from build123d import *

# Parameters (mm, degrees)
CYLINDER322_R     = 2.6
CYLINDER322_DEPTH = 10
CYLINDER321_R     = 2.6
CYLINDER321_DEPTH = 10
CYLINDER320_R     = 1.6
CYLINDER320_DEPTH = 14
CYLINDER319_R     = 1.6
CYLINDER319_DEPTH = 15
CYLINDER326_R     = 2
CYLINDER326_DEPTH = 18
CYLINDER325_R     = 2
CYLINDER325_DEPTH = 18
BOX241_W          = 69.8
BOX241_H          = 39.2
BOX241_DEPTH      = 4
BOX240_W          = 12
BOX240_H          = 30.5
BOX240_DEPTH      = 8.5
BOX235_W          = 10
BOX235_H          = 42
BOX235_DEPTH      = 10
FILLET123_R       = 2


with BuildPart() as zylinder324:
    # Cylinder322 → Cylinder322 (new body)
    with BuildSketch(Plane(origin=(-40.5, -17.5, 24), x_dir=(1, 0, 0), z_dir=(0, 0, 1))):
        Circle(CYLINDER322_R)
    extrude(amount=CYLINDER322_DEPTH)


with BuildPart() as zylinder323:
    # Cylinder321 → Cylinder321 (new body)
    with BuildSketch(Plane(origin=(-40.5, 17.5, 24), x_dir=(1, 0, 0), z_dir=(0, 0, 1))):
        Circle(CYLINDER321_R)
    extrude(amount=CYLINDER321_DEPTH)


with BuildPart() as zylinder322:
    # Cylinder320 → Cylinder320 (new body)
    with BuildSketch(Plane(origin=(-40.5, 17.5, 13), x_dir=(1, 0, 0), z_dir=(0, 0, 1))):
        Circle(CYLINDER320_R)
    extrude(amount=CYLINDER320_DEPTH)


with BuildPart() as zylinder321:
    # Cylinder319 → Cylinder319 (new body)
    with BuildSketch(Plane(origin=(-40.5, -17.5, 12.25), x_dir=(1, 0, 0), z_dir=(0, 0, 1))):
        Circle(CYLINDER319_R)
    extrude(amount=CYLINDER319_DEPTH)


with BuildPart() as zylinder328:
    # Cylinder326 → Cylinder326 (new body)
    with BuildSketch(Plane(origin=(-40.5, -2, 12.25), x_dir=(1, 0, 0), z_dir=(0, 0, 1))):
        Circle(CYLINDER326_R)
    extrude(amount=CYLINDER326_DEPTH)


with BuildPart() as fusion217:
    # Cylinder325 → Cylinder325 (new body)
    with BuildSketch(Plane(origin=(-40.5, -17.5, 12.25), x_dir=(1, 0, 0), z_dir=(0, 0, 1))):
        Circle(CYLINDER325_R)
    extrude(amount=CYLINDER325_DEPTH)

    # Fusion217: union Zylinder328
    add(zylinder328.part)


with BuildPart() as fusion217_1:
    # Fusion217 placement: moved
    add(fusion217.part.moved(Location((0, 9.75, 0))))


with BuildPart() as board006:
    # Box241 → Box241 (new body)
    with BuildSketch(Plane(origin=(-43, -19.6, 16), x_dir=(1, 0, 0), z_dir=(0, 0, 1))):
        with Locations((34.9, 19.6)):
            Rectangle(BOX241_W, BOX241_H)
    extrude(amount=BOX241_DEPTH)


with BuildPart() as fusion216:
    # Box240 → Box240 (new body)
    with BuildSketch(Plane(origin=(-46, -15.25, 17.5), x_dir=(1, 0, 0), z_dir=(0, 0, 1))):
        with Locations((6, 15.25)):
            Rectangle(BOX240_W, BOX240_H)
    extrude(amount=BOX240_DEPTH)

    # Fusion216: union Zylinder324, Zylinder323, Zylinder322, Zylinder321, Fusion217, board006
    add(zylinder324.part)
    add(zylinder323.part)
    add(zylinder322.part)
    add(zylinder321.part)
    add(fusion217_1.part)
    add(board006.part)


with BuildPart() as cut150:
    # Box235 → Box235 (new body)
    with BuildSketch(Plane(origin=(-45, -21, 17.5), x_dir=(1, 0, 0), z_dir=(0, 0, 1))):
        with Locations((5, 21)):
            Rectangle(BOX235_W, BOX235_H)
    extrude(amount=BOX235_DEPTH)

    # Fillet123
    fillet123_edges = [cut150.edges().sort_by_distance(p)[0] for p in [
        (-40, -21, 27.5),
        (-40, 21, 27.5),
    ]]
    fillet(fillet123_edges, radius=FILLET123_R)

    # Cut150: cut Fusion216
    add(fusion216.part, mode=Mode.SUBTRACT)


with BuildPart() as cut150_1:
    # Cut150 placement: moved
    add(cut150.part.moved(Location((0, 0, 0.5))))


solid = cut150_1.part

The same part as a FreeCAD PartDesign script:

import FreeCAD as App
import Part
import Sketcher

V = App.Vector
Q = App.Units.Quantity


def edges_at(feature, points):
    """Names of the edges that pass closest to the given points."""
    edges = feature.Shape.Edges
    near = lambda p: min(range(len(edges)), key=lambda i: edges[i].distToShape(Part.Vertex(*p))[0])
    return sorted({f"Edge{near(p) + 1}" for p in points})

doc = App.newDocument("Part")
body = doc.addObject("PartDesign::Body", "Body")

# Sketch on XY plane
sketch1 = body.newObject("Sketcher::SketchObject", "Sketch")
sketch1.AttachmentSupport = (doc.getObject("XY_Plane"), [""])
sketch1.MapMode = "FlatFace"
sketch1.AttachmentOffset = App.Placement(V(0, 0, 24), App.Rotation())
sketch1.addGeometry(Part.Circle(V(-40.5, -17.5, 0), V(0, 0, 1), 2.6), False)
sketch1.addConstraint([
    Sketcher.Constraint("Diameter", 0, Q("5.2 mm")),
    Sketcher.Constraint("DistanceX", 0, 3, -1, 1, Q("40.5 mm")),
    Sketcher.Constraint("DistanceY", 0, 3, -1, 1, Q("17.5 mm")),
])
pad1 = body.newObject("PartDesign::Pad", "Pad")
pad1.Profile = sketch1
pad1.Length = 10
body2 = doc.addObject("PartDesign::Body", "Body001")

# Sketch on XY plane
sketch2 = body2.newObject("Sketcher::SketchObject", "Sketch001")
sketch2.AttachmentSupport = (doc.getObject("XY_Plane001"), [""])
sketch2.MapMode = "FlatFace"
sketch2.AttachmentOffset = App.Placement(V(0, 0, 24), App.Rotation())
sketch2.addGeometry(Part.Circle(V(-40.5, 17.5, 0), V(0, 0, 1), 2.6), False)
sketch2.addConstraint([
    Sketcher.Constraint("Diameter", 0, Q("5.2 mm")),
    Sketcher.Constraint("DistanceX", 0, 3, -1, 1, Q("40.5 mm")),
    Sketcher.Constraint("DistanceY", -1, 1, 0, 3, Q("17.5 mm")),
])
pad2 = body2.newObject("PartDesign::Pad", "Pad001")
pad2.Profile = sketch2
pad2.Length = 10
body3 = doc.addObject("PartDesign::Body", "Body002")

# Sketch on XY plane
sketch3 = body3.newObject("Sketcher::SketchObject", "Sketch002")
sketch3.AttachmentSupport = (doc.getObject("XY_Plane002"), [""])
sketch3.MapMode = "FlatFace"
sketch3.AttachmentOffset = App.Placement(V(0, 0, 13), App.Rotation())
sketch3.addGeometry(Part.Circle(V(-40.5, 17.5, 0), V(0, 0, 1), 1.6), False)
sketch3.addConstraint([
    Sketcher.Constraint("Diameter", 0, Q("3.2 mm")),
    Sketcher.Constraint("DistanceX", 0, 3, -1, 1, Q("40.5 mm")),
    Sketcher.Constraint("DistanceY", -1, 1, 0, 3, Q("17.5 mm")),
])
pad3 = body3.newObject("PartDesign::Pad", "Pad002")
pad3.Profile = sketch3
pad3.Length = 14
body4 = doc.addObject("PartDesign::Body", "Body003")

# Sketch on XY plane
sketch4 = body4.newObject("Sketcher::SketchObject", "Sketch003")
sketch4.AttachmentSupport = (doc.getObject("XY_Plane003"), [""])
sketch4.MapMode = "FlatFace"
sketch4.AttachmentOffset = App.Placement(V(0, 0, 12.25), App.Rotation())
sketch4.addGeometry(Part.Circle(V(-40.5, -17.5, 0), V(0, 0, 1), 1.6), False)
sketch4.addConstraint([
    Sketcher.Constraint("Diameter", 0, Q("3.2 mm")),
    Sketcher.Constraint("DistanceX", 0, 3, -1, 1, Q("40.5 mm")),
    Sketcher.Constraint("DistanceY", 0, 3, -1, 1, Q("17.5 mm")),
])
pad4 = body4.newObject("PartDesign::Pad", "Pad003")
pad4.Profile = sketch4
pad4.Length = 15
body5 = doc.addObject("PartDesign::Body", "Body004")

# Sketch on XY plane
sketch5 = body5.newObject("Sketcher::SketchObject", "Sketch004")
sketch5.AttachmentSupport = (doc.getObject("XY_Plane004"), [""])
sketch5.MapMode = "FlatFace"
sketch5.AttachmentOffset = App.Placement(V(0, 0, 12.25), App.Rotation())
sketch5.addGeometry(Part.Circle(V(-40.5, -2, 0), V(0, 0, 1), 2), False)
sketch5.addConstraint([
    Sketcher.Constraint("Diameter", 0, Q("4 mm")),
    Sketcher.Constraint("DistanceY", 0, 3, -1, 1, Q("2 mm")),
    Sketcher.Constraint("DistanceX", 0, 3, -1, 1, Q("40.5 mm")),
])
pad5 = body5.newObject("PartDesign::Pad", "Pad004")
pad5.Profile = sketch5
pad5.Length = 18
body6 = doc.addObject("PartDesign::Body", "Body005")
body6.AllowCompound = True

# Sketch on XY plane
sketch6 = body6.newObject("Sketcher::SketchObject", "Sketch005")
sketch6.AttachmentSupport = (doc.getObject("XY_Plane005"), [""])
sketch6.MapMode = "FlatFace"
sketch6.AttachmentOffset = App.Placement(V(0, 0, 12.25), App.Rotation())
sketch6.addGeometry(Part.Circle(V(-40.5, -17.5, 0), V(0, 0, 1), 2), False)
sketch6.addConstraint([
    Sketcher.Constraint("Diameter", 0, Q("4 mm")),
    Sketcher.Constraint("DistanceX", 0, 3, -1, 1, Q("40.5 mm")),
    Sketcher.Constraint("DistanceY", 0, 3, -1, 1, Q("17.5 mm")),
])
pad6 = body6.newObject("PartDesign::Pad", "Pad005")
pad6.Profile = sketch6
pad6.Length = 18
doc.recompute()

boolean = body6.newObject("PartDesign::Boolean", "Boolean")
boolean.Type = "Fuse"
boolean.addObjects([body5])
body7 = doc.addObject("PartDesign::Body", "Body006")
body7.AllowCompound = True
doc.recompute()

body6.Placement = App.Placement(V(0, 9.75, 0), App.Rotation(V(0, 0, 1), 0))
boolean2 = body7.newObject("PartDesign::Boolean", "Boolean001")
boolean2.Type = "Fuse"
boolean2.addObjects([body6])
body8 = doc.addObject("PartDesign::Body", "Body007")

# Sketch on XY plane
sketch7 = body8.newObject("Sketcher::SketchObject", "Sketch006")
sketch7.AttachmentSupport = (doc.getObject("XY_Plane007"), [""])
sketch7.MapMode = "FlatFace"
sketch7.AttachmentOffset = App.Placement(V(0, 0, 16), App.Rotation())
sketch7.addGeometry([
    Part.LineSegment(V(-43, 20, 0), V(-43, -20, 0)),
    Part.LineSegment(V(-43, -20, 0), V(27, -20, 0)),
    Part.LineSegment(V(27, -20, 0), V(27, 20, 0)),
    Part.LineSegment(V(27, 20, 0), V(-43, 20, 0)),
], False)
sketch7.addConstraint([
    Sketcher.Constraint("Coincident", 0, 2, 1, 1),
    Sketcher.Constraint("Coincident", 1, 2, 2, 1),
    Sketcher.Constraint("Coincident", 2, 2, 3, 1),
    Sketcher.Constraint("Coincident", 3, 2, 0, 1),
    Sketcher.Constraint("Vertical", 0),
    Sketcher.Constraint("Horizontal", 1),
    Sketcher.Constraint("Vertical", 2),
    Sketcher.Constraint("Horizontal", 3),
    Sketcher.Constraint("DistanceX", 1, 1, 1, 2, Q("69.8 mm")),
    Sketcher.Constraint("DistanceY", 0, 2, 0, 1, Q("39.2 mm")),
    Sketcher.Constraint("DistanceX", 0, 2, -1, 1, Q("43 mm")),
    Sketcher.Constraint("DistanceY", 0, 2, -1, 1, Q("19.6 mm")),
])
pad7 = body8.newObject("PartDesign::Pad", "Pad006")
pad7.Profile = sketch7
pad7.Length = 4
body9 = doc.addObject("PartDesign::Body", "Body008")

# Sketch on XY plane
sketch8 = body9.newObject("Sketcher::SketchObject", "Sketch007")
sketch8.AttachmentSupport = (doc.getObject("XY_Plane008"), [""])
sketch8.MapMode = "FlatFace"
sketch8.AttachmentOffset = App.Placement(V(0, 0, 17.5), App.Rotation())
sketch8.addGeometry([
    Part.LineSegment(V(-46, 15, 0), V(-46, -15, 0)),
    Part.LineSegment(V(-46, -15, 0), V(-34, -15, 0)),
    Part.LineSegment(V(-34, -15, 0), V(-34, 15, 0)),
    Part.LineSegment(V(-34, 15, 0), V(-46, 15, 0)),
], False)
sketch8.addConstraint([
    Sketcher.Constraint("Coincident", 0, 2, 1, 1),
    Sketcher.Constraint("Coincident", 1, 2, 2, 1),
    Sketcher.Constraint("Coincident", 2, 2, 3, 1),
    Sketcher.Constraint("Coincident", 3, 2, 0, 1),
    Sketcher.Constraint("Vertical", 0),
    Sketcher.Constraint("Horizontal", 1),
    Sketcher.Constraint("Vertical", 2),
    Sketcher.Constraint("Horizontal", 3),
    Sketcher.Constraint("DistanceX", 1, 1, 1, 2, Q("12 mm")),
    Sketcher.Constraint("DistanceY", 0, 2, 0, 1, Q("30.5 mm")),
    Sketcher.Constraint("DistanceX", 0, 2, -1, 1, Q("46 mm")),
    Sketcher.Constraint("DistanceY", 0, 2, -1, 1, Q("15.25 mm")),
])
pad8 = body9.newObject("PartDesign::Pad", "Pad007")
pad8.Profile = sketch8
pad8.Length = 8.5
doc.recompute()

boolean3 = body9.newObject("PartDesign::Boolean", "Boolean002")
boolean3.Type = "Fuse"
boolean3.addObjects([body])
doc.recompute()

boolean4 = body9.newObject("PartDesign::Boolean", "Boolean003")
boolean4.Type = "Fuse"
boolean4.addObjects([body2])
doc.recompute()

boolean5 = body9.newObject("PartDesign::Boolean", "Boolean004")
boolean5.Type = "Fuse"
boolean5.addObjects([body3])
doc.recompute()

boolean6 = body9.newObject("PartDesign::Boolean", "Boolean005")
boolean6.Type = "Fuse"
boolean6.addObjects([body4])
doc.recompute()

boolean7 = body9.newObject("PartDesign::Boolean", "Boolean006")
boolean7.Type = "Fuse"
boolean7.addObjects([body7])
doc.recompute()

boolean8 = body9.newObject("PartDesign::Boolean", "Boolean007")
boolean8.Type = "Fuse"
boolean8.addObjects([body8])
body10 = doc.addObject("PartDesign::Body", "Body009")

# Sketch on XY plane
sketch9 = body10.newObject("Sketcher::SketchObject", "Sketch008")
sketch9.AttachmentSupport = (doc.getObject("XY_Plane009"), [""])
sketch9.MapMode = "FlatFace"
sketch9.AttachmentOffset = App.Placement(V(0, 0, 17.5), App.Rotation())
sketch9.addGeometry([
    Part.LineSegment(V(-45, 21, 0), V(-45, -21, 0)),
    Part.LineSegment(V(-45, -21, 0), V(-35, -21, 0)),
    Part.LineSegment(V(-35, -21, 0), V(-35, 21, 0)),
    Part.LineSegment(V(-35, 21, 0), V(-45, 21, 0)),
], False)
sketch9.addConstraint([
    Sketcher.Constraint("Coincident", 0, 2, 1, 1),
    Sketcher.Constraint("Coincident", 1, 2, 2, 1),
    Sketcher.Constraint("Coincident", 2, 2, 3, 1),
    Sketcher.Constraint("Coincident", 3, 2, 0, 1),
    Sketcher.Constraint("Vertical", 0),
    Sketcher.Constraint("Horizontal", 1),
    Sketcher.Constraint("Vertical", 2),
    Sketcher.Constraint("Horizontal", 3),
    Sketcher.Constraint("DistanceX", 1, 1, 1, 2, Q("10 mm")),
    Sketcher.Constraint("DistanceY", 0, 2, 0, 1, Q("42 mm")),
    Sketcher.Constraint("DistanceX", 0, 2, -1, 1, Q("45 mm")),
    Sketcher.Constraint("DistanceY", 0, 2, -1, 1, Q("21 mm")),
])
pad9 = body10.newObject("PartDesign::Pad", "Pad008")
pad9.Profile = sketch9
pad9.Length = 10
doc.recompute()

fillet = body10.newObject("PartDesign::Fillet", "Fillet")
fillet.Base = (pad9, edges_at(pad9, [(-40, -21, 27.5), (-40, 21, 27.5)]))
fillet.Radius = 2
doc.recompute()

boolean9 = body10.newObject("PartDesign::Boolean", "Boolean008")
boolean9.Type = "Cut"
boolean9.addObjects([body9])
body11 = doc.addObject("PartDesign::Body", "Body010")
doc.recompute()

body10.Placement = App.Placement(V(0, 0, 0.5), App.Rotation(V(0, 0, 1), 0))
boolean10 = body11.newObject("PartDesign::Boolean", "Boolean009")
boolean10.Type = "Fuse"
boolean10.addObjects([body10])

doc.recompute()
